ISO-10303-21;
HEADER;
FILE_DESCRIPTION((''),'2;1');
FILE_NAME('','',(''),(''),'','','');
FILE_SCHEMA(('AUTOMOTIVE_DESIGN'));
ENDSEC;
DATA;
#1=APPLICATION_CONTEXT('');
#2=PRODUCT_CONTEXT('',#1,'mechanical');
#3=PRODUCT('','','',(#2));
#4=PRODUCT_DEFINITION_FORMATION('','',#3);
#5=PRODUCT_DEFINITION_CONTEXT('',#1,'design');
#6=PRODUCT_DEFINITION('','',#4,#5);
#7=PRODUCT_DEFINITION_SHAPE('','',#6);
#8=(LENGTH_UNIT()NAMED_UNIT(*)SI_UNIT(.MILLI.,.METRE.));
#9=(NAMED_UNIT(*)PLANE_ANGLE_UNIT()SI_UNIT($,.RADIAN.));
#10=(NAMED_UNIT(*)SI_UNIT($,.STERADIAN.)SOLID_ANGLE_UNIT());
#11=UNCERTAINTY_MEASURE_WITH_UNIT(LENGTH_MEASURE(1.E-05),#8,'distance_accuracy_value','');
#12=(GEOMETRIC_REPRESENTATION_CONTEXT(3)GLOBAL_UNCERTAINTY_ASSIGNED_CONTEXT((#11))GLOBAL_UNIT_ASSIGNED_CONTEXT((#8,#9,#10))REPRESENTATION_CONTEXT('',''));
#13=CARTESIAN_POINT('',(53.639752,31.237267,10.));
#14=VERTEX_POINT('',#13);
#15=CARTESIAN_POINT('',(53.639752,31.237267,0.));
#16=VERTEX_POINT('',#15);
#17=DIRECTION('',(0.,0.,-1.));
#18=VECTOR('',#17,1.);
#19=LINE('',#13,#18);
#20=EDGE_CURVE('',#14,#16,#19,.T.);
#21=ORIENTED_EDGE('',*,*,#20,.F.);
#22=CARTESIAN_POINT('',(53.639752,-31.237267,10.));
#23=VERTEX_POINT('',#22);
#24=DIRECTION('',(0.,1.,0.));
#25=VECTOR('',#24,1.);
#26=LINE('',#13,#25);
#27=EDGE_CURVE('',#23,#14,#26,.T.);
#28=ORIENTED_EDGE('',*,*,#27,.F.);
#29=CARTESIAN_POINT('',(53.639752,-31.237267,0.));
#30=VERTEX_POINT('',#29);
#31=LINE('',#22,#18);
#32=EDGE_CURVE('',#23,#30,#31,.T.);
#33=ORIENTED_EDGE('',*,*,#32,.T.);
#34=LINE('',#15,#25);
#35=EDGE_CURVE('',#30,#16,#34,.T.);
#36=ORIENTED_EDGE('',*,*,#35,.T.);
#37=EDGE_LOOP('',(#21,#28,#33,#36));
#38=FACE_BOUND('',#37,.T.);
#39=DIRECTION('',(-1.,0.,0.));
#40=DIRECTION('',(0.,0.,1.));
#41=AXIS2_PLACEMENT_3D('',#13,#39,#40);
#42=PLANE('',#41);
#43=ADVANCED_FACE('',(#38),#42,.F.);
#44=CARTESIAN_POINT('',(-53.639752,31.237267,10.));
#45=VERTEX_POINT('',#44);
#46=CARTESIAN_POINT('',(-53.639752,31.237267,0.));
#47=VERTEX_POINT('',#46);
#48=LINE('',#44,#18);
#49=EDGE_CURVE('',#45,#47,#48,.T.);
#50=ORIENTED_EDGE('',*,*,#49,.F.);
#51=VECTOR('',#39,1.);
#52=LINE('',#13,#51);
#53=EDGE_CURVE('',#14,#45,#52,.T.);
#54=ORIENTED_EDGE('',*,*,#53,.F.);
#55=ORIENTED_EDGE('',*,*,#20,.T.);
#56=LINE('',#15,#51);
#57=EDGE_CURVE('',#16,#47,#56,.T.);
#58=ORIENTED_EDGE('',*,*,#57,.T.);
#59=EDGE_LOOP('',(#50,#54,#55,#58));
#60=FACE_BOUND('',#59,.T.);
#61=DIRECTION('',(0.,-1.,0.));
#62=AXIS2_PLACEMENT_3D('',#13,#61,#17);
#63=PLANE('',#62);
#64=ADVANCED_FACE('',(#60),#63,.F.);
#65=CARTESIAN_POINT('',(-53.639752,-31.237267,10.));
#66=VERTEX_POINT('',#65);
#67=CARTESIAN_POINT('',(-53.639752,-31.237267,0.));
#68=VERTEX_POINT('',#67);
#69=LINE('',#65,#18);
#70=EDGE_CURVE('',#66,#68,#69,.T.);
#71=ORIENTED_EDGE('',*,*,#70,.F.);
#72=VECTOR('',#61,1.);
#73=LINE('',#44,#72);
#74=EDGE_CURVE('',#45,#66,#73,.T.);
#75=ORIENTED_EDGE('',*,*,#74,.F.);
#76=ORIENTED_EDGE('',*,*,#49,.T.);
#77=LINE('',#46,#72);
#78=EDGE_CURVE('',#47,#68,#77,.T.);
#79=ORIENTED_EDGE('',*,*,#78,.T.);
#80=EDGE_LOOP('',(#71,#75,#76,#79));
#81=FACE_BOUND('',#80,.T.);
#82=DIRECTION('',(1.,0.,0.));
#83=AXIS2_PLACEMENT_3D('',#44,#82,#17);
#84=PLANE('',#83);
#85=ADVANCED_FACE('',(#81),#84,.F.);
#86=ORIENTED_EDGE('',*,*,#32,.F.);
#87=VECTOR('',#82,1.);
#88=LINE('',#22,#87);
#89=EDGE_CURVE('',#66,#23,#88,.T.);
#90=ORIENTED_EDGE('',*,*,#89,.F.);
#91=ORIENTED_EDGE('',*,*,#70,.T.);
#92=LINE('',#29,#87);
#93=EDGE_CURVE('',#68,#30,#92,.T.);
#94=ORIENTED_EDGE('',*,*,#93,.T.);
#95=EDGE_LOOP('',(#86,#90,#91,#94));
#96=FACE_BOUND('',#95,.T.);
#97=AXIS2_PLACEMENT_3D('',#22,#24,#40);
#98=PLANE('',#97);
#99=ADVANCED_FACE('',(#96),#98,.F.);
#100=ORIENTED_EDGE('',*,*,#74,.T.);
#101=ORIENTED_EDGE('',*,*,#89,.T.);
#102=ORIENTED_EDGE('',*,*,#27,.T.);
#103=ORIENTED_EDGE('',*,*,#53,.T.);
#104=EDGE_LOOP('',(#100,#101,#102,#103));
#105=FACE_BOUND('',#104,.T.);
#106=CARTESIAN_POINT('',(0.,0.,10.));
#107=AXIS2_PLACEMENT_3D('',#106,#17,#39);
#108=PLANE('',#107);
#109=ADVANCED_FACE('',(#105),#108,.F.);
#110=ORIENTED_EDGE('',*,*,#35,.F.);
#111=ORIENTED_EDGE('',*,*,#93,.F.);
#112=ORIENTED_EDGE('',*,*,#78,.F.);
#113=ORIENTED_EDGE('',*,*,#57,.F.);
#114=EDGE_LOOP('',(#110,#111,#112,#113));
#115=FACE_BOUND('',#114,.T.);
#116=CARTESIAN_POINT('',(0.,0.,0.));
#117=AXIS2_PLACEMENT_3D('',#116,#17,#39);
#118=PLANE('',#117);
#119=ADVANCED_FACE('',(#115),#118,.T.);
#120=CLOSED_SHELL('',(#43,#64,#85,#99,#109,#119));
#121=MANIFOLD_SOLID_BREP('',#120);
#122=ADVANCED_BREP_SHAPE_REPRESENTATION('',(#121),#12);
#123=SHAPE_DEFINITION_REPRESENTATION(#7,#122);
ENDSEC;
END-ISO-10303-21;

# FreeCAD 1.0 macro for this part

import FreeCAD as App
import Part
import Sketcher

doc = App.newDocument("Part")
body = doc.addObject("PartDesign::Body", "Body")

sketch1 = body.newObject("Sketcher::SketchObject", "Sketch")
sketch1.AttachmentSupport = (doc.getObject("XY_Plane"), [""])
sketch1.MapMode = "FlatFace"
sketch1.addGeometry(Part.LineSegment(App.Vector(-54, 31, 0), App.Vector(-54, -31, 0)), False)
sketch1.addGeometry(Part.LineSegment(App.Vector(-54, -31, 0), App.Vector(54, -31, 0)), False)
sketch1.addGeometry(Part.LineSegment(App.Vector(54, -31, 0), App.Vector(54, 31, 0)), False)
sketch1.addGeometry(Part.LineSegment(App.Vector(54, 31, 0), App.Vector(-54, 31, 0)), False)
sketch1.addConstraint(Sketcher.Constraint("Coincident", 0, 2, 1, 1))
sketch1.addConstraint(Sketcher.Constraint("Coincident", 1, 2, 2, 1))
sketch1.addConstraint(Sketcher.Constraint("Coincident", 2, 2, 3, 1))
sketch1.addConstraint(Sketcher.Constraint("Coincident", 3, 2, 0, 1))
sketch1.addConstraint(Sketcher.Constraint("Vertical", 0))
sketch1.addConstraint(Sketcher.Constraint("Horizontal", 1))
sketch1.addConstraint(Sketcher.Constraint("Vertical", 2))
sketch1.addConstraint(Sketcher.Constraint("Horizontal", 3))
sketch1.addConstraint(Sketcher.Constraint("Symmetric", 0, 2, 2, 2, -1, 1))
sketch1.addConstraint(Sketcher.Constraint("DistanceX", 1, 1, 1, 2, 107.279503))
sketch1.addConstraint(Sketcher.Constraint("DistanceY", 0, 2, 0, 1, 62.474534))
pad1 = body.newObject("PartDesign::Pad", "Pad")
pad1.Profile = sketch1
pad1.Length = 10

doc.recompute()
